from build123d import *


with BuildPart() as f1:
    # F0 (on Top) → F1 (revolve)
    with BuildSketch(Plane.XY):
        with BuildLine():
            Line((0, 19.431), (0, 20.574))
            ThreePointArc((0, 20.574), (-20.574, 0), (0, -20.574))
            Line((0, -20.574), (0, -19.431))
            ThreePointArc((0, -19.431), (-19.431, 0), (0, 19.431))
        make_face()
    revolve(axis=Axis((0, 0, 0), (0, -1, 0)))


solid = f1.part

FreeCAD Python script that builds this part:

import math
import FreeCAD as App
import Part
import Sketcher

V = App.Vector
Q = App.Units.Quantity

doc = App.newDocument("Part")
body = doc.addObject("PartDesign::Body", "Body")

# Sketch on XY plane
sketch1 = body.newObject("Sketcher::SketchObject", "Sketch")
sketch1.AttachmentSupport = (doc.getObject("XY_Plane"), [""])
sketch1.MapMode = "FlatFace"
sketch1.addGeometry(Part.LineSegment(V(0, 19.4, 0), V(0, 20.6, 0)), False)
sketch1.addGeometry(Part.ArcOfCircle(Part.Circle(V(0, 0, 0), V(0, 0, 1), 20.6), math.radians(90), math.radians(270)), False)
sketch1.addGeometry(Part.LineSegment(V(0, -20.6, 0), V(0, -19.4, 0)), False)
sketch1.addGeometry(Part.ArcOfCircle(Part.Circle(V(0, 0, 0), V(0, 0, 1), 19.4), math.radians(90), math.radians(270)), False)
sketch1.addConstraint(Sketcher.Constraint("Coincident", 0, 2, 1, 1))
sketch1.addConstraint(Sketcher.Constraint("Coincident", 1, 2, 2, 1))
sketch1.addConstraint(Sketcher.Constraint("Coincident", 2, 2, 3, 2))
sketch1.addConstraint(Sketcher.Constraint("Coincident", 3, 1, 0, 1))
sketch1.addConstraint(Sketcher.Constraint("Vertical", 0))
sketch1.addConstraint(Sketcher.Constraint("Vertical", 2))
sketch1.addConstraint(Sketcher.Constraint("Coincident", 1, 3, -1, 1))
sketch1.addConstraint(Sketcher.Constraint("Coincident", 3, 3, -1, 1))
sketch1.addConstraint(Sketcher.Constraint("PointOnObject", 0, 2, -2))
sketch1.addConstraint(Sketcher.Constraint("PointOnObject", 1, 2, -2))
sketch1.addConstraint(Sketcher.Constraint("Radius", 1, Q("0.81 in")))
sketch1.addConstraint(Sketcher.Constraint("Radius", 3, Q("0.765 in")))
revolution = body.newObject("PartDesign::Revolution", "Revolution")
revolution.Profile = sketch1
revolution.ReferenceAxis = (sketch1, ["V_Axis"])
revolution.Angle = 360

doc.recompute()
